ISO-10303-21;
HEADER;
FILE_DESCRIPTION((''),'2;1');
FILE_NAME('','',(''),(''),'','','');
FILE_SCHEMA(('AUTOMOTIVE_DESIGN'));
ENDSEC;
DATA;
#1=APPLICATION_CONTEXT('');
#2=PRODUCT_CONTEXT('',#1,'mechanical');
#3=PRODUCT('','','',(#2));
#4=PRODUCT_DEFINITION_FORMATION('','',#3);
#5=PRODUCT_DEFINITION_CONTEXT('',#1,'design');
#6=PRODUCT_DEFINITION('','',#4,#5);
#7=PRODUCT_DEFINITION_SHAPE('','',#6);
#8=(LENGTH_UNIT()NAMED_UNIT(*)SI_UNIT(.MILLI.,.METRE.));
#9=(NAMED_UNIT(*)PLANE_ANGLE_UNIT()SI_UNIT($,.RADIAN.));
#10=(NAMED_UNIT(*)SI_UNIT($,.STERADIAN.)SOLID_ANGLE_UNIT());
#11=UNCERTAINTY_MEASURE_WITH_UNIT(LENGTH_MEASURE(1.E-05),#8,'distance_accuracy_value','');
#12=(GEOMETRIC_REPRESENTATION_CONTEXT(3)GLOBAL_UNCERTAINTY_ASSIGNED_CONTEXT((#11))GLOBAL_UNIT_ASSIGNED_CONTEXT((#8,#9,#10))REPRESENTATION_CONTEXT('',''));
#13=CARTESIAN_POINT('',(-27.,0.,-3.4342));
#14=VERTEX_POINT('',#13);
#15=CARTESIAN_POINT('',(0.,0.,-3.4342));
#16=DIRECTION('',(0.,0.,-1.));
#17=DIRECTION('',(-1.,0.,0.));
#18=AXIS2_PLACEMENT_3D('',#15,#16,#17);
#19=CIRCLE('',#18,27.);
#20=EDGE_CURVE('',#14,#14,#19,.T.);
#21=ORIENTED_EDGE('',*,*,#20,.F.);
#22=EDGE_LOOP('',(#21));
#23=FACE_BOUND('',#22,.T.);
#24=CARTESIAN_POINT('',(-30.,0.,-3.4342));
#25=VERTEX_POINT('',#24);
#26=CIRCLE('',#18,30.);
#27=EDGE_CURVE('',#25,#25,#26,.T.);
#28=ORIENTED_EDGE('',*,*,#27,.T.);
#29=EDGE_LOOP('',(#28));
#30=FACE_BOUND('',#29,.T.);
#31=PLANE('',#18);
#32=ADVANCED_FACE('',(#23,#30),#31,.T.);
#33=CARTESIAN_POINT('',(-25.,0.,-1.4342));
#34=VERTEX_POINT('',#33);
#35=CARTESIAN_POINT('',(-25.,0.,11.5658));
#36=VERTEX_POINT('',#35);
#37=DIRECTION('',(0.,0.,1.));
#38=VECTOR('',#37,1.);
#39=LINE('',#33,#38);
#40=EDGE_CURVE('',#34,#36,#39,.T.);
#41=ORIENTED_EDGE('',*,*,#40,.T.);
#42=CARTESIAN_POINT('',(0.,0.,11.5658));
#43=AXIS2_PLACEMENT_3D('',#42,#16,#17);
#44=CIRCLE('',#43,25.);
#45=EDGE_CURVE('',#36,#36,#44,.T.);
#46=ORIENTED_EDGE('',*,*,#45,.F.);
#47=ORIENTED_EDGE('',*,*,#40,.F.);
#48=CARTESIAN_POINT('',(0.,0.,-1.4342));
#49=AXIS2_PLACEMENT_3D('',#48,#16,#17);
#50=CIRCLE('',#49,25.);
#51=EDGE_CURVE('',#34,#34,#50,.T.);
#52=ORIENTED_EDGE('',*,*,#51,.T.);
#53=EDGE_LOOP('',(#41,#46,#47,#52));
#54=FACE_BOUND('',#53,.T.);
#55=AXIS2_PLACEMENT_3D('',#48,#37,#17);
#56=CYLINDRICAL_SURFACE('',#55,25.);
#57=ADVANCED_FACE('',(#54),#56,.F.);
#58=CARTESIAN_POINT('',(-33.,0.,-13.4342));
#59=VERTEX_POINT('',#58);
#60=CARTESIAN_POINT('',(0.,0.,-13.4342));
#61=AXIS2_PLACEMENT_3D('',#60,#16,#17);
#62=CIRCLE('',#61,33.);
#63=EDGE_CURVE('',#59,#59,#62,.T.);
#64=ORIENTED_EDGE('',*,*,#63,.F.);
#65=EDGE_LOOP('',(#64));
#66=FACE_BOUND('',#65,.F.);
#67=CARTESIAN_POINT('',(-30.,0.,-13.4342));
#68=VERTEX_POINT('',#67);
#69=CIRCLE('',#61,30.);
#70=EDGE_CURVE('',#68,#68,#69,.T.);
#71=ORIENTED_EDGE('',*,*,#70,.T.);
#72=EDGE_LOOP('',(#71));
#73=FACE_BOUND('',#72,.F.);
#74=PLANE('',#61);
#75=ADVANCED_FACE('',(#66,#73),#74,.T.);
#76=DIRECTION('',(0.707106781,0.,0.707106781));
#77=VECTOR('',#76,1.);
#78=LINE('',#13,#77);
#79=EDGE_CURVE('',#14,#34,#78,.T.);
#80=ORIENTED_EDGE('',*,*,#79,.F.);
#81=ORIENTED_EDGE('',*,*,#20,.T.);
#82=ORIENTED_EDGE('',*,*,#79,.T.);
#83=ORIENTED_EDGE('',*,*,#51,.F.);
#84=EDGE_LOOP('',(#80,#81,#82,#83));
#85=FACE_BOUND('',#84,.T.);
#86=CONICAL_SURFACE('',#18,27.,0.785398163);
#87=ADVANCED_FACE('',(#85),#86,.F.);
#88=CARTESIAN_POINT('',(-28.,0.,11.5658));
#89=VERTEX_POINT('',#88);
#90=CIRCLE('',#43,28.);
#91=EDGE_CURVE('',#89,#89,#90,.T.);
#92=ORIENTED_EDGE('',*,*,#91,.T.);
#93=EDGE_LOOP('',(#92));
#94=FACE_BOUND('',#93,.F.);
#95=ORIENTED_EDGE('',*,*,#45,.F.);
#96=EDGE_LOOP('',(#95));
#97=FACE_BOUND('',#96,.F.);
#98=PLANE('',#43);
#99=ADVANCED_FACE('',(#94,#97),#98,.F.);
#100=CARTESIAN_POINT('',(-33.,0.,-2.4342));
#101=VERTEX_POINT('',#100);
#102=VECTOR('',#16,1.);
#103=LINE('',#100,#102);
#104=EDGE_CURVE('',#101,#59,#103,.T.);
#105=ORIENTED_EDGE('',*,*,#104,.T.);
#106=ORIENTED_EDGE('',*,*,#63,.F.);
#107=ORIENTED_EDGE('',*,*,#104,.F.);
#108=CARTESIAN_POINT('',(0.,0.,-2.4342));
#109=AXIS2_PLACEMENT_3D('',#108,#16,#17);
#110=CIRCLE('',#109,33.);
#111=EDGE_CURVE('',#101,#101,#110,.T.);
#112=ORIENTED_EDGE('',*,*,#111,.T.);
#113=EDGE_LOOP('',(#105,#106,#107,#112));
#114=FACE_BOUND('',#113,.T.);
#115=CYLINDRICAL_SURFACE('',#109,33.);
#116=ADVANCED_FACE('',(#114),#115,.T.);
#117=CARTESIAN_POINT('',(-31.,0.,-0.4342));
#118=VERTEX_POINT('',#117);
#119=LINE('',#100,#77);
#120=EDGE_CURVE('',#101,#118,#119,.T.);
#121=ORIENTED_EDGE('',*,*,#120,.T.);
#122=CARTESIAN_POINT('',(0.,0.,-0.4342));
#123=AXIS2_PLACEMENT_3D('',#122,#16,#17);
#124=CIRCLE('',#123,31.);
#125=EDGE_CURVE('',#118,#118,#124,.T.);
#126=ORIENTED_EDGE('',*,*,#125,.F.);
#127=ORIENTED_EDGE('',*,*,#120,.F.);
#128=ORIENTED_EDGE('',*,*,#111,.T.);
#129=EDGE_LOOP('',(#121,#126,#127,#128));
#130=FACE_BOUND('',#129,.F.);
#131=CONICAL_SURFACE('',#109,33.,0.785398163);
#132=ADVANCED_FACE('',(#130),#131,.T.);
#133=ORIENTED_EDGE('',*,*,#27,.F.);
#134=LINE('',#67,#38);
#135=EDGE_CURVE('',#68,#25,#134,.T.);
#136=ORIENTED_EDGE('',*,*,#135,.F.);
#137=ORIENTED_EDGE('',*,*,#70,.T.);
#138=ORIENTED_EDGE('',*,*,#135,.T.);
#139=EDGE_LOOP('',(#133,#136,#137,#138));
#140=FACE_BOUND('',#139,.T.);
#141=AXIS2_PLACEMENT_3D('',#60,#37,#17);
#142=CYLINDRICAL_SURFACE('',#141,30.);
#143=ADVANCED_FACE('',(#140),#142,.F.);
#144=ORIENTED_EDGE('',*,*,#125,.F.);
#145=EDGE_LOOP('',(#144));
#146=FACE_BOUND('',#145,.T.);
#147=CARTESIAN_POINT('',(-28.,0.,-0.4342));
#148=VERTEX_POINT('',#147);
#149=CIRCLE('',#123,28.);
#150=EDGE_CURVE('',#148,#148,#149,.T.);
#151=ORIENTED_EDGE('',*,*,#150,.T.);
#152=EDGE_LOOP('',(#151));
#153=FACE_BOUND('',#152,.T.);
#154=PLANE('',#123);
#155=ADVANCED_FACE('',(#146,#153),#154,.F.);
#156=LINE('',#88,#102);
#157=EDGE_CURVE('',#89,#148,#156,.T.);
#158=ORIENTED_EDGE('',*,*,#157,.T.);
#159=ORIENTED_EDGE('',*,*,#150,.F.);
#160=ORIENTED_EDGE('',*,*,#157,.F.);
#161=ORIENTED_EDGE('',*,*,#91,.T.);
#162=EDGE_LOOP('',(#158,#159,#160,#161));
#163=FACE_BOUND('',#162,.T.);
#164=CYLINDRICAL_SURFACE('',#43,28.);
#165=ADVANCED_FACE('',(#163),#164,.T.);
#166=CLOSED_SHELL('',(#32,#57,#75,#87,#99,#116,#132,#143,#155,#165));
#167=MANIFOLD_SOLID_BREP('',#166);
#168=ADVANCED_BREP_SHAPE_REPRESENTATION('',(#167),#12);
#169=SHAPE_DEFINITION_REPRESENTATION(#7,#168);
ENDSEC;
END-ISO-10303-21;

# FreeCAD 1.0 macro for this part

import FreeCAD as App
import Part
import Sketcher

doc = App.newDocument("Part")
params = doc.addObject("Spreadsheet::Sheet", "Params")
for row, (alias, value) in enumerate([
    ("sketch1_width", "3 mm"),
    ("sketch1_height", "10 mm"),
    ("sketch1_height2", "11 mm"),
    ("sketch1_height3", "12 mm"),
    ("revolution_angle", "360 deg"),
], start=1):
    params.set(f"A{row}", alias)
    params.set(f"B{row}", "=" + value)
    params.setAlias(f"B{row}", alias)

body = doc.addObject("PartDesign::Body", "Body")

# Sketch on XZ plane
sketch1 = body.newObject("Sketcher::SketchObject", "Sketch")
sketch1.AttachmentSupport = (doc.getObject("XZ_Plane"), [""])
sketch1.MapMode = "FlatFace"
sketch1.addGeometry([
    Part.LineSegment(App.Vector(-30, -3.4, 0), App.Vector(-30, -13.4, 0)),  # 0
    Part.LineSegment(App.Vector(-30, -13.4, 0), App.Vector(-33, -13.4, 0)),  # 1
    Part.LineSegment(App.Vector(-33, -13.4, 0), App.Vector(-33, -2.4, 0)),  # 2
    Part.LineSegment(App.Vector(-33, -2.4, 0), App.Vector(-31, -0.4, 0)),  # 3
    Part.LineSegment(App.Vector(-31, -0.4, 0), App.Vector(-28, -0.4, 0)),  # 4
    Part.LineSegment(App.Vector(-28, -0.4, 0), App.Vector(-28, 11.6, 0)),  # 5
    Part.LineSegment(App.Vector(-28, 11.6, 0), App.Vector(-25, 11.6, 0)),  # 6
    Part.LineSegment(App.Vector(-25, 11.6, 0), App.Vector(-25, -1.4, 0)),  # 7
    Part.LineSegment(App.Vector(-25, -1.4, 0), App.Vector(-27, -3.4, 0)),  # 8
    Part.LineSegment(App.Vector(-27, -3.4, 0), App.Vector(-30, -3.4, 0)),  # 9
], False)
sketch1.addConstraint([
    Sketcher.Constraint("Coincident", 0, 2, 1, 1),
    Sketcher.Constraint("Coincident", 1, 2, 2, 1),
    Sketcher.Constraint("Coincident", 2, 2, 3, 1),
    Sketcher.Constraint("Coincident", 3, 2, 4, 1),
    Sketcher.Constraint("Coincident", 4, 2, 5, 1),
    Sketcher.Constraint("Coincident", 5, 2, 6, 1),
    Sketcher.Constraint("Coincident", 6, 2, 7, 1),
    Sketcher.Constraint("Coincident", 7, 2, 8, 1),
    Sketcher.Constraint("Coincident", 8, 2, 9, 1),
    Sketcher.Constraint("Coincident", 9, 2, 0, 1),
    Sketcher.Constraint("Vertical", 0),
    Sketcher.Constraint("Horizontal", 1),
    Sketcher.Constraint("Vertical", 2),
    Sketcher.Constraint("Horizontal", 4),
    Sketcher.Constraint("Vertical", 5),
    Sketcher.Constraint("Horizontal", 6),
    Sketcher.Constraint("Vertical", 7),
    Sketcher.Constraint("Horizontal", 9),
    Sketcher.Constraint("Parallel", 3, 8),
    Sketcher.Constraint("Equal", 1, 4),
    Sketcher.Constraint("Equal", 4, 6),
    Sketcher.Constraint("Equal", 6, 9),
    Sketcher.Constraint("DistanceX", 2, 2, 3, 2, 2.0),
    Sketcher.Constraint("DistanceY", 2, 2, 3, 2, 2.0),
    Sketcher.Constraint("DistanceX", 1, 2, 1, 1, 3.0),
    Sketcher.Constraint("DistanceY", 0, 2, 0, 1, 10.0),
    Sketcher.Constraint("DistanceY", 2, 1, 2, 2, 11.0),
    Sketcher.Constraint("DistanceY", 5, 1, 5, 2, 12.0),
    Sketcher.Constraint("DistanceX", 0, 2, -1, 1, 30.0),
    Sketcher.Constraint("DistanceY", 0, 2, -1, 1, 13.4342),
])
sketch1.setExpression("Constraints[24]", "Params.sketch1_width")
sketch1.setExpression("Constraints[25]", "Params.sketch1_height")
sketch1.setExpression("Constraints[26]", "Params.sketch1_height2")
sketch1.setExpression("Constraints[27]", "Params.sketch1_height3")
revolution = body.newObject("PartDesign::Revolution", "Revolution")
revolution.Profile = sketch1
revolution.ReferenceAxis = (sketch1, ["V_Axis"])
revolution.setExpression("Angle", "Params.revolution_angle")

doc.recompute()
